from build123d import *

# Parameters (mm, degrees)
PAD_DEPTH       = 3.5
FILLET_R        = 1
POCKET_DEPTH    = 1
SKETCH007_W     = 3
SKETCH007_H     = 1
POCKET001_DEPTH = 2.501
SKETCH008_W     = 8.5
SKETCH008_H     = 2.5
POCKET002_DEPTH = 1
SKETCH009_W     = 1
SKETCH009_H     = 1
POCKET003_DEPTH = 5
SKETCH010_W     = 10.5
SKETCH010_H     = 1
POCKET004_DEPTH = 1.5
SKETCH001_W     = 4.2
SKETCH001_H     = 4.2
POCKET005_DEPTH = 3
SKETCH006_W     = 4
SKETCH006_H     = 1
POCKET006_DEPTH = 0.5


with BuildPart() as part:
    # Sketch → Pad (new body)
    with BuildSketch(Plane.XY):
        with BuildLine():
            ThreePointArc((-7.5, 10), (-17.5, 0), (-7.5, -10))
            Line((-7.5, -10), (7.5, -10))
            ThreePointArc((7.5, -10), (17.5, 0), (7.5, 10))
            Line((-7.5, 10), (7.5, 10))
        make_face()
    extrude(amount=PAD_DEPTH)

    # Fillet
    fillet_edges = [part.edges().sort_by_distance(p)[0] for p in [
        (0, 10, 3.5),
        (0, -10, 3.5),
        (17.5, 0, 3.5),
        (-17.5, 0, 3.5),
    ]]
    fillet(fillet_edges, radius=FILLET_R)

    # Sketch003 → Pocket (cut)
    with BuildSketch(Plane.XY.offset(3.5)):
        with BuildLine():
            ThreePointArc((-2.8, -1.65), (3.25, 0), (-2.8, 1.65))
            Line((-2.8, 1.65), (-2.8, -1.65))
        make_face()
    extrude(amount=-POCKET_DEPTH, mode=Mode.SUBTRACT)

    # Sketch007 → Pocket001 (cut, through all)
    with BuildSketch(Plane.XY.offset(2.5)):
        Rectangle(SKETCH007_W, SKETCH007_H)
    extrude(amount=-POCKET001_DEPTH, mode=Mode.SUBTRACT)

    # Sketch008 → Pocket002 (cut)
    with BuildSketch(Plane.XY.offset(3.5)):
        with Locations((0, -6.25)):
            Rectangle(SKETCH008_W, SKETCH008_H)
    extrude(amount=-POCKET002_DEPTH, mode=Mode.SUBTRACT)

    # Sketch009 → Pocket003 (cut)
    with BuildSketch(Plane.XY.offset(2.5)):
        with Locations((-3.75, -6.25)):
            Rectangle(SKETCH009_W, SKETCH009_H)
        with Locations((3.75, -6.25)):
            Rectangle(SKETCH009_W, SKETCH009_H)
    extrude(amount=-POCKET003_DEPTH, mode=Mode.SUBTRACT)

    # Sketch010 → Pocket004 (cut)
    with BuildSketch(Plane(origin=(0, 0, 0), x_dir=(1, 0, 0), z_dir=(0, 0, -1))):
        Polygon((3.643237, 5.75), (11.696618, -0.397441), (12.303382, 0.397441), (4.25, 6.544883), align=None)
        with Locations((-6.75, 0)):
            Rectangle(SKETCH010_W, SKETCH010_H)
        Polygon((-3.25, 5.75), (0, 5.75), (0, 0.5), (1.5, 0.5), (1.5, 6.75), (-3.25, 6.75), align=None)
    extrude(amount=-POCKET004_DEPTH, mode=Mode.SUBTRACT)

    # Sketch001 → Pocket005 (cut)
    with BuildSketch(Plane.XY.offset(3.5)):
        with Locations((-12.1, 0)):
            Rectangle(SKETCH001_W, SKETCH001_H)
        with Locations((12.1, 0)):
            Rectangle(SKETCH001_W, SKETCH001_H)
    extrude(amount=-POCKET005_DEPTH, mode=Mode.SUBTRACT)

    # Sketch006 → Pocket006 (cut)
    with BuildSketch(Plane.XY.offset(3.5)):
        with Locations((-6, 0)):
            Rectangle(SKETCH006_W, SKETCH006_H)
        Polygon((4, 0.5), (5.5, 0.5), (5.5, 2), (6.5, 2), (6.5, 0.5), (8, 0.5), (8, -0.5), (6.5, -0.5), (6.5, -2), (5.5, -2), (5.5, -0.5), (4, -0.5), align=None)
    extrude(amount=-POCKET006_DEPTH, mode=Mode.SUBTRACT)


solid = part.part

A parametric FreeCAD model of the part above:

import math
import FreeCAD as App
import Part
import Sketcher
Q = App.Units.Quantity


def edges_at(feature, points):
    """Names of the edges that pass closest to the given points."""
    edges = feature.Shape.Edges
    near = lambda p: min(range(len(edges)), key=lambda i: edges[i].distToShape(Part.Vertex(*p))[0])
    return sorted({f"Edge{near(p) + 1}" for p in points})


def add_polygon(sketch, points):
    """Adds a closed chain of lines whose ends are joined by coincident constraints."""
    first, n = sketch.GeometryCount, len(points)
    for a, b in zip(points, points[1:] + points[:1]):
        sketch.addGeometry(Part.LineSegment(App.Vector(*a, 0), App.Vector(*b, 0)), False)
    for i in range(n):
        sketch.addConstraint(Sketcher.Constraint("Coincident", first + i, 2, first + (i + 1) % n, 1))

doc = App.newDocument("Part")
body = doc.addObject("PartDesign::Body", "Body")

sketch1 = body.newObject("Sketcher::SketchObject", "Sketch")
sketch1.AttachmentSupport = (doc.getObject("XY_Plane"), [""])
sketch1.MapMode = "FlatFace"
sketch1.addGeometry(Part.ArcOfCircle(Part.Circle(App.Vector(-7.5, 0, 0), App.Vector(0, 0, 1), 10), math.radians(90), math.radians(270)), False)
sketch1.addGeometry(Part.LineSegment(App.Vector(-7.5, -10, 0), App.Vector(7.5, -10, 0)), False)
sketch1.addGeometry(Part.ArcOfCircle(Part.Circle(App.Vector(7.5, 0, 0), App.Vector(0, 0, 1), 10), math.radians(-90), math.radians(90)), False)
sketch1.addGeometry(Part.LineSegment(App.Vector(7.5, 10, 0), App.Vector(-7.5, 10, 0)), False)
sketch1.addConstraint(Sketcher.Constraint("Tangent", 0, 2, 1, 1))
sketch1.addConstraint(Sketcher.Constraint("Tangent", 1, 2, 2, 1))
sketch1.addConstraint(Sketcher.Constraint("Tangent", 2, 2, 3, 1))
sketch1.addConstraint(Sketcher.Constraint("Tangent", 3, 2, 0, 1))
sketch1.addConstraint(Sketcher.Constraint("Horizontal", 1))
sketch1.addConstraint(Sketcher.Constraint("Horizontal", 3))
sketch1.addConstraint(Sketcher.Constraint("Symmetric", 0, 3, 2, 3, -1, 1))
sketch1.addConstraint(Sketcher.Constraint("Radius", 0, Q("10 mm")))
sketch1.addConstraint(Sketcher.Constraint("DistanceX", 1, 1, 1, 2, Q("15 mm")))
pad1 = body.newObject("PartDesign::Pad", "Pad")
pad1.Profile = sketch1
pad1.Length = 3.5
doc.recompute()

fillet = body.newObject("PartDesign::Fillet", "Fillet")
fillet.Base = (pad1, edges_at(pad1, [
    (0, 10, 3.5),
    (0, -10, 3.5),
    (17.5, 0, 3.5),
    (-17.5, 0, 3.5),
]))
fillet.Radius = 1

sketch2 = body.newObject("Sketcher::SketchObject", "Sketch001")
sketch2.AttachmentSupport = (doc.getObject("XY_Plane"), [""])
sketch2.MapMode = "FlatFace"
sketch2.AttachmentOffset = App.Placement(App.Vector(0, 0, 3.5), App.Rotation())
sketch2.addGeometry(Part.ArcOfCircle(Part.Circle(App.Vector(0, 0, 0), App.Vector(0, 0, 1), 3.25), math.radians(-149.489763), math.radians(149.489763)), False)
sketch2.addGeometry(Part.LineSegment(App.Vector(-2.8, 1.65, 0), App.Vector(-2.8, -1.65, 0)), False)
sketch2.addConstraint(Sketcher.Constraint("Coincident", 0, 1, 1, 2))
sketch2.addConstraint(Sketcher.Constraint("Coincident", 1, 1, 0, 2))
sketch2.addConstraint(Sketcher.Constraint("Vertical", 1))
sketch2.addConstraint(Sketcher.Constraint("Coincident", 0, 3, -1, 1))
sketch2.addConstraint(Sketcher.Constraint("Radius", 0, Q("3.25 mm")))
sketch2.addConstraint(Sketcher.Constraint("DistanceY", 1, 2, 1, 1, Q("3.3 mm")))
pocket1 = body.newObject("PartDesign::Pocket", "Pocket")
pocket1.Profile = sketch2
pocket1.Length = 1

sketch3 = body.newObject("Sketcher::SketchObject", "Sketch002")
sketch3.AttachmentSupport = (doc.getObject("XY_Plane"), [""])
sketch3.MapMode = "FlatFace"
sketch3.AttachmentOffset = App.Placement(App.Vector(0, 0, 2.5), App.Rotation())
add_polygon(sketch3, [(-1.5, 0.5), (-1.5, -0.5), (1.5, -0.5), (1.5, 0.5)])
sketch3.addConstraint(Sketcher.Constraint("Vertical", 0))
sketch3.addConstraint(Sketcher.Constraint("Horizontal", 1))
sketch3.addConstraint(Sketcher.Constraint("Vertical", 2))
sketch3.addConstraint(Sketcher.Constraint("Horizontal", 3))
sketch3.addConstraint(Sketcher.Constraint("Symmetric", 0, 2, 2, 2, -1, 1))
sketch3.addConstraint(Sketcher.Constraint("DistanceX", 1, 1, 1, 2, Q("3 mm")))
sketch3.addConstraint(Sketcher.Constraint("DistanceY", 0, 2, 0, 1, Q("1 mm")))
pocket2 = body.newObject("PartDesign::Pocket", "Pocket001")
pocket2.Profile = sketch3
pocket2.Type = "ThroughAll"

sketch4 = body.newObject("Sketcher::SketchObject", "Sketch003")
sketch4.AttachmentSupport = (doc.getObject("XY_Plane"), [""])
sketch4.MapMode = "FlatFace"
sketch4.AttachmentOffset = App.Placement(App.Vector(0, 0, 3.5), App.Rotation())
add_polygon(sketch4, [(-4.25, -5), (-4.25, -7.5), (4.25, -7.5), (4.25, -5)])
sketch4.addConstraint(Sketcher.Constraint("Vertical", 0))
sketch4.addConstraint(Sketcher.Constraint("Horizontal", 1))
sketch4.addConstraint(Sketcher.Constraint("Vertical", 2))
sketch4.addConstraint(Sketcher.Constraint("Horizontal", 3))
sketch4.addConstraint(Sketcher.Constraint("DistanceX", 1, 1, 1, 2, Q("8.5 mm")))
sketch4.addConstraint(Sketcher.Constraint("DistanceY", 0, 2, 0, 1, Q("2.5 mm")))
sketch4.addConstraint(Sketcher.Constraint("DistanceY", 2, 2, -1, 1, Q("5 mm")))
sketch4.addConstraint(Sketcher.Constraint("DistanceX", 0, 2, -1, 1, Q("4.25 mm")))
pocket3 = body.newObject("PartDesign::Pocket", "Pocket002")
pocket3.Profile = sketch4
pocket3.Length = 1

sketch5 = body.newObject("Sketcher::SketchObject", "Sketch004")
sketch5.AttachmentSupport = (doc.getObject("XY_Plane"), [""])
sketch5.MapMode = "FlatFace"
sketch5.AttachmentOffset = App.Placement(App.Vector(0, 0, 2.5), App.Rotation())
add_polygon(sketch5, [(-4.25, -5.75), (-4.25, -6.75), (-3.25, -6.75), (-3.25, -5.75)])
add_polygon(sketch5, [(3.25, -5.75), (3.25, -6.75), (4.25, -6.75), (4.25, -5.75)])
sketch5.addConstraint(Sketcher.Constraint("Vertical", 0))
sketch5.addConstraint(Sketcher.Constraint("Horizontal", 1))
sketch5.addConstraint(Sketcher.Constraint("Vertical", 2))
sketch5.addConstraint(Sketcher.Constraint("Horizontal", 3))
sketch5.addConstraint(Sketcher.Constraint("Vertical", 4))
sketch5.addConstraint(Sketcher.Constraint("Horizontal", 5))
sketch5.addConstraint(Sketcher.Constraint("Vertical", 6))
sketch5.addConstraint(Sketcher.Constraint("Horizontal", 7))
sketch5.addConstraint(Sketcher.Constraint("Symmetric", 1, 2, 4, 2, -2))
sketch5.addConstraint(Sketcher.Constraint("Symmetric", 3, 2, 6, 2, -2))
sketch5.addConstraint(Sketcher.Constraint("Equal", 7, 0))
sketch5.addConstraint(Sketcher.Constraint("DistanceX", 1, 1, 1, 2, Q("1 mm")))
sketch5.addConstraint(Sketcher.Constraint("DistanceX", 1, 2, 4, 2, Q("6.5 mm")))
sketch5.addConstraint(Sketcher.Constraint("DistanceY", 0, 2, -1, 1, Q("6.75 mm")))
pocket4 = body.newObject("PartDesign::Pocket", "Pocket003")
pocket4.Profile = sketch5
pocket4.Length = 5

sketch6 = body.newObject("Sketcher::SketchObject", "Sketch005")
sketch6.AttachmentSupport = (doc.getObject("XY_Plane"), [""])
sketch6.MapMode = "FlatFace"
add_polygon(sketch6, [(3.643237, -5.75), (11.696618, 0.397441), (12.303382, -0.397441), (4.25, -6.544883)])
add_polygon(sketch6, [(-12, -0.5), (-12, 0.5), (-1.5, 0.5), (-1.5, -0.5)])
add_polygon(sketch6, [(-3.25, -5.75), (0, -5.75), (0, -0.5), (1.5, -0.5), (1.5, -6.75), (-3.25, -6.75)])
sketch6.addConstraint(Sketcher.Constraint("Vertical", 4))
sketch6.addConstraint(Sketcher.Constraint("Horizontal", 5))
sketch6.addConstraint(Sketcher.Constraint("Vertical", 6))
sketch6.addConstraint(Sketcher.Constraint("Horizontal", 7))
sketch6.addConstraint(Sketcher.Constraint("Horizontal", 8))
sketch6.addConstraint(Sketcher.Constraint("Vertical", 9))
sketch6.addConstraint(Sketcher.Constraint("Horizontal", 10))
sketch6.addConstraint(Sketcher.Constraint("Vertical", 11))
sketch6.addConstraint(Sketcher.Constraint("Horizontal", 12))
sketch6.addConstraint(Sketcher.Constraint("Vertical", 13))
sketch6.addConstraint(Sketcher.Constraint("Symmetric", 5, 2, 10, 2, -1, 1))
sketch6.addConstraint(Sketcher.Constraint("PointOnObject", 8, 2, -2))
sketch6.addConstraint(Sketcher.Constraint("Perpendicular", 0, 1))
sketch6.addConstraint(Sketcher.Constraint("Perpendicular", 1, 2))
sketch6.addConstraint(Sketcher.Constraint("Perpendicular", 2, 3))
sketch6.addConstraint(Sketcher.Constraint("Horizontal", 3, 2, 8, 2))
sketch6.addConstraint(Sketcher.Constraint("Horizontal", 7, 2, 9, 2))
sketch6.addConstraint(Sketcher.Constraint("Equal", 6, 13))
sketch6.addConstraint(Sketcher.Constraint("DistanceY", 4, 1, 4, 2, Q("1 mm")))
sketch6.addConstraint(Sketcher.Constraint("Distance", 1, Q("1 mm")))
sketch6.addConstraint(Sketcher.Constraint("DistanceX", 5, 1, 5, 2, Q("10.5 mm")))
sketch6.addConstraint(Sketcher.Constraint("DistanceX", 10, 1, 10, 2, Q("1.5 mm")))
sketch6.addConstraint(Sketcher.Constraint("DistanceX", 8, 1, 8, 2, Q("3.25 mm")))
sketch6.addConstraint(Sketcher.Constraint("DistanceY", 9, 1, 9, 2, Q("5.25 mm")))
sketch6.addConstraint(Sketcher.Constraint("DistanceX", -1, 1, 2, 2, Q("4.25 mm")))
sketch6.addConstraint(Sketcher.Constraint("DistanceX", -1, 1, 0, 2, Q("11.696618 mm")))
sketch6.addConstraint(Sketcher.Constraint("DistanceY", -1, 1, 0, 2, Q("0.397441 mm")))
pocket5 = body.newObject("PartDesign::Pocket", "Pocket004")
pocket5.Profile = sketch6
pocket5.Length = 1.5
pocket5.Reversed = True

sketch7 = body.newObject("Sketcher::SketchObject", "Sketch006")
sketch7.AttachmentSupport = (doc.getObject("XY_Plane"), [""])
sketch7.MapMode = "FlatFace"
sketch7.AttachmentOffset = App.Placement(App.Vector(0, 0, 3.5), App.Rotation())
add_polygon(sketch7, [(-14.2, 2.1), (-14.2, -2.1), (-10, -2.1), (-10, 2.1)])
add_polygon(sketch7, [(10, 2.1), (10, -2.1), (14.2, -2.1), (14.2, 2.1)])
sketch7.addConstraint(Sketcher.Constraint("Vertical", 0))
sketch7.addConstraint(Sketcher.Constraint("Horizontal", 1))
sketch7.addConstraint(Sketcher.Constraint("Vertical", 2))
sketch7.addConstraint(Sketcher.Constraint("Horizontal", 3))
sketch7.addConstraint(Sketcher.Constraint("Vertical", 4))
sketch7.addConstraint(Sketcher.Constraint("Horizontal", 5))
sketch7.addConstraint(Sketcher.Constraint("Vertical", 6))
sketch7.addConstraint(Sketcher.Constraint("Horizontal", 7))
sketch7.addConstraint(Sketcher.Constraint("Symmetric", 2, 2, 4, 2, -1, 1))
sketch7.addConstraint(Sketcher.Constraint("Symmetric", 0, 2, 6, 2, -1, 1))
sketch7.addConstraint(Sketcher.Constraint("Horizontal", 1, 2, 4, 2))
sketch7.addConstraint(Sketcher.Constraint("Equal", 7, 0))
sketch7.addConstraint(Sketcher.Constraint("DistanceX", 1, 1, 1, 2, Q("4.2 mm")))
sketch7.addConstraint(Sketcher.Constraint("DistanceX", 1, 2, -1, 1, Q("10 mm")))
pocket6 = body.newObject("PartDesign::Pocket", "Pocket005")
pocket6.Profile = sketch7
pocket6.Length = 3

sketch8 = body.newObject("Sketcher::SketchObject", "Sketch007")
sketch8.AttachmentSupport = (doc.getObject("XY_Plane"), [""])
sketch8.MapMode = "FlatFace"
sketch8.AttachmentOffset = App.Placement(App.Vector(0, 0, 3.5), App.Rotation())
add_polygon(sketch8, [(-8, 0.5), (-8, -0.5), (-4, -0.5), (-4, 0.5)])
add_polygon(sketch8, [(5.5, 0.5), (4, 0.5), (4, -0.5), (5.5, -0.5), (5.5, -2), (6.5, -2), (6.5, -0.5), (8, -0.5), (8, 0.5), (6.5, 0.5), (6.5, 2), (5.5, 2)])
sketch8.addConstraint(Sketcher.Constraint("Vertical", 0))
sketch8.addConstraint(Sketcher.Constraint("Horizontal", 1))
sketch8.addConstraint(Sketcher.Constraint("Vertical", 2))
sketch8.addConstraint(Sketcher.Constraint("Horizontal", 3))
sketch8.addConstraint(Sketcher.Constraint("Horizontal", 4))
sketch8.addConstraint(Sketcher.Constraint("Vertical", 5))
sketch8.addConstraint(Sketcher.Constraint("Horizontal", 6))
sketch8.addConstraint(Sketcher.Constraint("Vertical", 7))
sketch8.addConstraint(Sketcher.Constraint("Horizontal", 8))
sketch8.addConstraint(Sketcher.Constraint("Vertical", 9))
sketch8.addConstraint(Sketcher.Constraint("Horizontal", 10))
sketch8.addConstraint(Sketcher.Constraint("Vertical", 11))
sketch8.addConstraint(Sketcher.Constraint("Horizontal", 12))
sketch8.addConstraint(Sketcher.Constraint("Vertical", 13))
sketch8.addConstraint(Sketcher.Constraint("Horizontal", 14))
sketch8.addConstraint(Sketcher.Constraint("Vertical", 15))
sketch8.addConstraint(Sketcher.Constraint("Symmetric", 1, 2, 4, 2, -1, 1))
sketch8.addConstraint(Sketcher.Constraint("Symmetric", 3, 2, 10, 2, -1, 1))
sketch8.addConstraint(Sketcher.Constraint("Symmetric", 9, 2, 12, 2, -1))
sketch8.addConstraint(Sketcher.Constraint("Symmetric", 7, 2, 14, 2, -1))
sketch8.addConstraint(Sketcher.Constraint("Horizontal", 3, 2, 4, 2))
sketch8.addConstraint(Sketcher.Constraint("Horizontal", 1, 2, 5, 2))
sketch8.addConstraint(Sketcher.Constraint("Equal", 6, 10))
sketch8.addConstraint(Sketcher.Constraint("Equal", 14, 0))
sketch8.addConstraint(Sketcher.Constraint("Equal", 12, 7))
sketch8.addConstraint(Sketcher.Constraint("DistanceX", 1, 1, 1, 2, Q("4 mm")))
sketch8.addConstraint(Sketcher.Constraint("DistanceX", 8, 1, 8, 2, Q("1 mm")))
sketch8.addConstraint(Sketcher.Constraint("DistanceX", 0, 2, -1, 1, Q("8 mm")))
pocket7 = body.newObject("PartDesign::Pocket", "Pocket006")
pocket7.Profile = sketch8
pocket7.Length = 0.5

doc.recompute()
